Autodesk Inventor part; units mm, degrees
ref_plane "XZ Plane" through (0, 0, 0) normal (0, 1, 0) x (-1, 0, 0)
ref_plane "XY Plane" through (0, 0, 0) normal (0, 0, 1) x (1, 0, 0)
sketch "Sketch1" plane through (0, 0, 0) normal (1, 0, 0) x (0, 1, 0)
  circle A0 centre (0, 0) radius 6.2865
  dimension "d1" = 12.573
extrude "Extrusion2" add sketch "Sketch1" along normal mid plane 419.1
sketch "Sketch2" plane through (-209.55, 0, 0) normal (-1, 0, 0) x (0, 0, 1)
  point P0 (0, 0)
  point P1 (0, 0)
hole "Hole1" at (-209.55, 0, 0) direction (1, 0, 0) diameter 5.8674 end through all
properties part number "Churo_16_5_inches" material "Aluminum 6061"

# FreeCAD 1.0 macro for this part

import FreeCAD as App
import Part
import Sketcher

V = App.Vector
Q = App.Units.Quantity

doc = App.newDocument("Part")
body = doc.addObject("PartDesign::Body", "Body")

# Sketch on YZ plane
sketch1 = body.newObject("Sketcher::SketchObject", "Sketch")
sketch1.AttachmentSupport = (doc.getObject("YZ_Plane"), [""])
sketch1.MapMode = "FlatFace"
sketch1.addGeometry(Part.Circle(V(0, 0, 0), V(0, 0, 1), 6), False)
sketch1.addConstraint([
    Sketcher.Constraint("Coincident", 0, 3, -1, 1),
    Sketcher.Constraint("Diameter", 0, Q("0.495 in")),
])
pad1 = body.newObject("PartDesign::Pad", "Pad")
pad1.Profile = sketch1
pad1.Length = Q("16.5 in")
pad1.Midplane = True

# Sketch on YZ plane
sketch2 = body.newObject("Sketcher::SketchObject", "Sketch001")
sketch2.AttachmentSupport = (doc.getObject("YZ_Plane"), [""])
sketch2.MapMode = "FlatFace"
sketch2.AttachmentOffset = App.Placement(V(0, 0, -8.25 * 25.4), App.Rotation())
sketch2.addGeometry(Part.Circle(V(0, 0, 0), V(0, 0, 1), 2.9), False)
sketch2.addConstraint([
    Sketcher.Constraint("Coincident", 0, 3, -1, 1),
    Sketcher.Constraint("Diameter", 0, Q("0.231 in")),
])
doc.recompute()
hole = body.newObject("PartDesign::Hole", "Hole")
hole.Profile = sketch2
hole.ThreadType = "None"
hole.Diameter = Q("0.231 in")
hole.DepthType = "ThroughAll"
hole.Reversed = True

doc.recompute()
